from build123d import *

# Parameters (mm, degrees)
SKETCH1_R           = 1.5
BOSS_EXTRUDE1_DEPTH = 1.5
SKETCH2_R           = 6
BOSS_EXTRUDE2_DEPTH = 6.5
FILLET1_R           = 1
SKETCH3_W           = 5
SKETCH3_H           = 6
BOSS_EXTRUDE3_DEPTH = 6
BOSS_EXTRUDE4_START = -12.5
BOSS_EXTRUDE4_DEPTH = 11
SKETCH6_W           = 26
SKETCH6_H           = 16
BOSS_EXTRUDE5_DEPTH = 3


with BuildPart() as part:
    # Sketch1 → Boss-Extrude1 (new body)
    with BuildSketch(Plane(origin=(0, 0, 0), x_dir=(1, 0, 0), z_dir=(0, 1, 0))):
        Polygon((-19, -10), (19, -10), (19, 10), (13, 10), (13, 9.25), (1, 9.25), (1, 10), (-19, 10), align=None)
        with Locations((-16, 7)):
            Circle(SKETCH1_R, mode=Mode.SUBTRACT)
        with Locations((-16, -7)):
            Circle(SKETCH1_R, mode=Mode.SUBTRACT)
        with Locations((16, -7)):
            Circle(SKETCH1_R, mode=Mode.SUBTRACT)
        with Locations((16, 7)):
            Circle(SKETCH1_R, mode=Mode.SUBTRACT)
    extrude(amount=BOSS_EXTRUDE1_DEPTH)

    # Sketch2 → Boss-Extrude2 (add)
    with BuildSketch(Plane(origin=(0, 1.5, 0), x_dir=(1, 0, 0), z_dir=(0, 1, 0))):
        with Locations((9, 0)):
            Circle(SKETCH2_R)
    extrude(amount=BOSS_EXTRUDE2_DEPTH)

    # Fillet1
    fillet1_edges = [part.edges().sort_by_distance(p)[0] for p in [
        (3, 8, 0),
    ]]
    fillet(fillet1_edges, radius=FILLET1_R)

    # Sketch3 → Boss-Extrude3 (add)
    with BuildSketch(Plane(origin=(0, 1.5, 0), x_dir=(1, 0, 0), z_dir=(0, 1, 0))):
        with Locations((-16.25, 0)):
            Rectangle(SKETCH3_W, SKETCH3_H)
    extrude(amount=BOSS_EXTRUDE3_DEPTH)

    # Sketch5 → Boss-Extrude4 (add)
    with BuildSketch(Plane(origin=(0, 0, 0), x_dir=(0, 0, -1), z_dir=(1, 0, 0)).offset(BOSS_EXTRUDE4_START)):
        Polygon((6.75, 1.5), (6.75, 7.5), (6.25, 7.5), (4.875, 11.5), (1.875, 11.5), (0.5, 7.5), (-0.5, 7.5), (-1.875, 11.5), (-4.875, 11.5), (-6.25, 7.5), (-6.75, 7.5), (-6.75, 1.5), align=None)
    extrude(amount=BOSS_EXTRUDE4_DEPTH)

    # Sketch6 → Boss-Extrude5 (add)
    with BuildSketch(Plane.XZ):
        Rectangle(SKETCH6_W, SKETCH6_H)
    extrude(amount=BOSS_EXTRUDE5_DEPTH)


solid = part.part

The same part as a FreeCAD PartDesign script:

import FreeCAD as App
import Part
import Sketcher


def edges_at(feature, points):
    """Names of the edges that pass closest to the given points."""
    edges = feature.Shape.Edges
    near = lambda p: min(range(len(edges)), key=lambda i: edges[i].distToShape(Part.Vertex(*p))[0])
    return sorted({f"Edge{near(p) + 1}" for p in points})


def add_polygon(sketch, points):
    """Adds a closed chain of lines whose ends are joined by coincident constraints."""
    first, n = sketch.GeometryCount, len(points)
    for a, b in zip(points, points[1:] + points[:1]):
        sketch.addGeometry(Part.LineSegment(App.Vector(*a, 0), App.Vector(*b, 0)), False)
    for i in range(n):
        sketch.addConstraint(Sketcher.Constraint("Coincident", first + i, 2, first + (i + 1) % n, 1))

doc = App.newDocument("Part")
body = doc.addObject("PartDesign::Body", "Body")

# Sketch on XZ plane
sketch1 = body.newObject("Sketcher::SketchObject", "Sketch")
sketch1.AttachmentSupport = (doc.getObject("XZ_Plane"), [""])
sketch1.MapMode = "FlatFace"
add_polygon(sketch1, [(-19, 10), (19, 10), (19, -10), (13, -10), (13, -9.25), (1, -9.25), (1, -10), (-19, -10)])  # lines 0-7
sketch1.addGeometry(Part.Circle(App.Vector(-16, 7, 0), App.Vector(0, 0, 1), 1.5), False)  # 8
sketch1.addGeometry(Part.Circle(App.Vector(16, 7, 0), App.Vector(0, 0, 1), 1.5), False)  # 9
sketch1.addGeometry(Part.Circle(App.Vector(-16, -7, 0), App.Vector(0, 0, 1), 1.5), False)  # 10
sketch1.addGeometry(Part.Circle(App.Vector(16, -7, 0), App.Vector(0, 0, 1), 1.5), False)  # 11
sketch1.addConstraint([
    Sketcher.Constraint("Horizontal", 0),
    Sketcher.Constraint("Vertical", 1),
    Sketcher.Constraint("Horizontal", 2),
    Sketcher.Constraint("Vertical", 3),
    Sketcher.Constraint("Horizontal", 4),
    Sketcher.Constraint("Vertical", 5),
    Sketcher.Constraint("Horizontal", 6),
    Sketcher.Constraint("Vertical", 7),
    Sketcher.Constraint("Equal", 8, 9),
    Sketcher.Constraint("Equal", 9, 10),
    Sketcher.Constraint("Equal", 10, 11),
    Sketcher.Constraint("Symmetric", 9, 3, 10, 3, -1, 1),
    Sketcher.Constraint("Symmetric", 8, 3, 11, 3, -1, 1),
    Sketcher.Constraint("Symmetric", 0, 2, 6, 2, -1, 1),
    Sketcher.Constraint("Symmetric", 8, 3, 9, 3, -2),
    Sketcher.Constraint("Horizontal", 2, 2, 5, 2),
    Sketcher.Constraint("Equal", 6, 1),
    Sketcher.Constraint("Diameter", 8, 3.0),
    Sketcher.Constraint("DistanceX", 0, 1, 0, 2, 38.0),
    Sketcher.Constraint("DistanceX", 2, 2, 2, 1, 6.0),
    Sketcher.Constraint("DistanceX", 4, 2, 4, 1, 12.0),
    Sketcher.Constraint("DistanceX", 8, 3, -1, 1, 16.0),
    Sketcher.Constraint("DistanceY", -1, 1, 8, 3, 7.0),
    Sketcher.Constraint("DistanceY", 3, 1, 3, 2, 0.75),
])
pad1 = body.newObject("PartDesign::Pad", "Pad")
pad1.Profile = sketch1
pad1.Length = 1.5
pad1.Reversed = True

# Sketch on XZ plane
sketch2 = body.newObject("Sketcher::SketchObject", "Sketch001")
sketch2.AttachmentSupport = (doc.getObject("XZ_Plane"), [""])
sketch2.MapMode = "FlatFace"
sketch2.AttachmentOffset = App.Placement(App.Vector(0, 0, -1.5), App.Rotation())
sketch2.addGeometry(Part.Circle(App.Vector(9, 0, 0), App.Vector(0, 0, 1), 6), False)
sketch2.addConstraint([
    Sketcher.Constraint("PointOnObject", 0, 3, -1),
    Sketcher.Constraint("Diameter", 0, 12.0),
    Sketcher.Constraint("DistanceX", -1, 1, 0, 3, 9.0),
])
pad2 = body.newObject("PartDesign::Pad", "Pad001")
pad2.Profile = sketch2
pad2.Length = 6.5
pad2.Reversed = True
doc.recompute()

fillet = body.newObject("PartDesign::Fillet", "Fillet")
fillet.Base = (pad2, edges_at(pad2, [(3, 8, 0)]))
fillet.Radius = 1

# Sketch on XZ plane
sketch3 = body.newObject("Sketcher::SketchObject", "Sketch002")
sketch3.AttachmentSupport = (doc.getObject("XZ_Plane"), [""])
sketch3.MapMode = "FlatFace"
sketch3.AttachmentOffset = App.Placement(App.Vector(0, 0, -1.5), App.Rotation())
add_polygon(sketch3, [(-18.75, -3), (-18.75, 3), (-13.75, 3), (-13.75, -3)])  # lines 0-3
sketch3.addConstraint([
    Sketcher.Constraint("Vertical", 0),
    Sketcher.Constraint("Horizontal", 1),
    Sketcher.Constraint("Vertical", 2),
    Sketcher.Constraint("Horizontal", 3),
    Sketcher.Constraint("DistanceX", 1, 1, 1, 2, 5.0),
    Sketcher.Constraint("DistanceY", 0, 1, 0, 2, 6.0),
    Sketcher.Constraint("DistanceY", -1, 1, 0, 2, 3.0),
    Sketcher.Constraint("DistanceX", 0, 2, -1, 1, 18.75),
])
pad3 = body.newObject("PartDesign::Pad", "Pad002")
pad3.Profile = sketch3
pad3.Length = 6
pad3.Reversed = True

# Sketch on YZ plane
sketch4 = body.newObject("Sketcher::SketchObject", "Sketch003")
sketch4.AttachmentSupport = (doc.getObject("YZ_Plane"), [""])
sketch4.MapMode = "FlatFace"
sketch4.AttachmentOffset = App.Placement(App.Vector(0, 0, -12.5), App.Rotation())
add_polygon(sketch4, [(1.5, -6.75), (7.5, -6.75), (7.5, -6.25), (11.5, -4.875), (11.5, -1.875), (7.5, -0.5), (7.5, 0.5), (11.5, 1.875), (11.5, 4.875), (7.5, 6.25), (7.5, 6.75), (1.5, 6.75)])  # lines 0-11
sketch4.addConstraint([
    Sketcher.Constraint("Horizontal", 0),
    Sketcher.Constraint("Vertical", 1),
    Sketcher.Constraint("Vertical", 3),
    Sketcher.Constraint("Vertical", 5),
    Sketcher.Constraint("Vertical", 7),
    Sketcher.Constraint("Vertical", 9),
    Sketcher.Constraint("Horizontal", 10),
    Sketcher.Constraint("Vertical", 11),
    Sketcher.Constraint("Symmetric", 3, 2, 6, 2, -1),
    Sketcher.Constraint("Symmetric", 1, 2, 8, 2, -1),
    Sketcher.Constraint("Parallel", 2, 6),
    Sketcher.Constraint("Parallel", 4, 8),
    Sketcher.Constraint("Vertical", 1, 2, 4, 2),
    Sketcher.Constraint("Equal", 3, 7),
    Sketcher.Constraint("Equal", 1, 9),
    Sketcher.Constraint("DistanceX", 0, 1, 0, 2, 6.0),
    Sketcher.Constraint("DistanceY", 3, 1, 3, 2, 3.0),
    Sketcher.Constraint("DistanceY", 5, 1, 5, 2, 1.0),
    Sketcher.Constraint("DistanceY", 1, 1, 1, 2, 0.5),
    Sketcher.Constraint("DistanceY", 11, 2, 11, 1, 13.5),
    Sketcher.Constraint("DistanceX", 1, 2, 2, 2, 4.0),
    Sketcher.Constraint("DistanceX", -1, 1, 0, 2, 7.5),
])
pad4 = body.newObject("PartDesign::Pad", "Pad003")
pad4.Profile = sketch4
pad4.Length = 11

# Sketch on XZ plane
sketch5 = body.newObject("Sketcher::SketchObject", "Sketch004")
sketch5.AttachmentSupport = (doc.getObject("XZ_Plane"), [""])
sketch5.MapMode = "FlatFace"
add_polygon(sketch5, [(-13, 8), (-13, -8), (13, -8), (13, 8)])  # lines 0-3
sketch5.addConstraint([
    Sketcher.Constraint("Vertical", 0),
    Sketcher.Constraint("Horizontal", 1),
    Sketcher.Constraint("Vertical", 2),
    Sketcher.Constraint("Horizontal", 3),
    Sketcher.Constraint("Symmetric", 0, 2, 2, 2, -1, 1),
    Sketcher.Constraint("DistanceX", 1, 1, 1, 2, 26.0),
    Sketcher.Constraint("DistanceY", 0, 2, 0, 1, 16.0),
])
pad5 = body.newObject("PartDesign::Pad", "Pad004")
pad5.Profile = sketch5
pad5.Length = 3

doc.recompute()
